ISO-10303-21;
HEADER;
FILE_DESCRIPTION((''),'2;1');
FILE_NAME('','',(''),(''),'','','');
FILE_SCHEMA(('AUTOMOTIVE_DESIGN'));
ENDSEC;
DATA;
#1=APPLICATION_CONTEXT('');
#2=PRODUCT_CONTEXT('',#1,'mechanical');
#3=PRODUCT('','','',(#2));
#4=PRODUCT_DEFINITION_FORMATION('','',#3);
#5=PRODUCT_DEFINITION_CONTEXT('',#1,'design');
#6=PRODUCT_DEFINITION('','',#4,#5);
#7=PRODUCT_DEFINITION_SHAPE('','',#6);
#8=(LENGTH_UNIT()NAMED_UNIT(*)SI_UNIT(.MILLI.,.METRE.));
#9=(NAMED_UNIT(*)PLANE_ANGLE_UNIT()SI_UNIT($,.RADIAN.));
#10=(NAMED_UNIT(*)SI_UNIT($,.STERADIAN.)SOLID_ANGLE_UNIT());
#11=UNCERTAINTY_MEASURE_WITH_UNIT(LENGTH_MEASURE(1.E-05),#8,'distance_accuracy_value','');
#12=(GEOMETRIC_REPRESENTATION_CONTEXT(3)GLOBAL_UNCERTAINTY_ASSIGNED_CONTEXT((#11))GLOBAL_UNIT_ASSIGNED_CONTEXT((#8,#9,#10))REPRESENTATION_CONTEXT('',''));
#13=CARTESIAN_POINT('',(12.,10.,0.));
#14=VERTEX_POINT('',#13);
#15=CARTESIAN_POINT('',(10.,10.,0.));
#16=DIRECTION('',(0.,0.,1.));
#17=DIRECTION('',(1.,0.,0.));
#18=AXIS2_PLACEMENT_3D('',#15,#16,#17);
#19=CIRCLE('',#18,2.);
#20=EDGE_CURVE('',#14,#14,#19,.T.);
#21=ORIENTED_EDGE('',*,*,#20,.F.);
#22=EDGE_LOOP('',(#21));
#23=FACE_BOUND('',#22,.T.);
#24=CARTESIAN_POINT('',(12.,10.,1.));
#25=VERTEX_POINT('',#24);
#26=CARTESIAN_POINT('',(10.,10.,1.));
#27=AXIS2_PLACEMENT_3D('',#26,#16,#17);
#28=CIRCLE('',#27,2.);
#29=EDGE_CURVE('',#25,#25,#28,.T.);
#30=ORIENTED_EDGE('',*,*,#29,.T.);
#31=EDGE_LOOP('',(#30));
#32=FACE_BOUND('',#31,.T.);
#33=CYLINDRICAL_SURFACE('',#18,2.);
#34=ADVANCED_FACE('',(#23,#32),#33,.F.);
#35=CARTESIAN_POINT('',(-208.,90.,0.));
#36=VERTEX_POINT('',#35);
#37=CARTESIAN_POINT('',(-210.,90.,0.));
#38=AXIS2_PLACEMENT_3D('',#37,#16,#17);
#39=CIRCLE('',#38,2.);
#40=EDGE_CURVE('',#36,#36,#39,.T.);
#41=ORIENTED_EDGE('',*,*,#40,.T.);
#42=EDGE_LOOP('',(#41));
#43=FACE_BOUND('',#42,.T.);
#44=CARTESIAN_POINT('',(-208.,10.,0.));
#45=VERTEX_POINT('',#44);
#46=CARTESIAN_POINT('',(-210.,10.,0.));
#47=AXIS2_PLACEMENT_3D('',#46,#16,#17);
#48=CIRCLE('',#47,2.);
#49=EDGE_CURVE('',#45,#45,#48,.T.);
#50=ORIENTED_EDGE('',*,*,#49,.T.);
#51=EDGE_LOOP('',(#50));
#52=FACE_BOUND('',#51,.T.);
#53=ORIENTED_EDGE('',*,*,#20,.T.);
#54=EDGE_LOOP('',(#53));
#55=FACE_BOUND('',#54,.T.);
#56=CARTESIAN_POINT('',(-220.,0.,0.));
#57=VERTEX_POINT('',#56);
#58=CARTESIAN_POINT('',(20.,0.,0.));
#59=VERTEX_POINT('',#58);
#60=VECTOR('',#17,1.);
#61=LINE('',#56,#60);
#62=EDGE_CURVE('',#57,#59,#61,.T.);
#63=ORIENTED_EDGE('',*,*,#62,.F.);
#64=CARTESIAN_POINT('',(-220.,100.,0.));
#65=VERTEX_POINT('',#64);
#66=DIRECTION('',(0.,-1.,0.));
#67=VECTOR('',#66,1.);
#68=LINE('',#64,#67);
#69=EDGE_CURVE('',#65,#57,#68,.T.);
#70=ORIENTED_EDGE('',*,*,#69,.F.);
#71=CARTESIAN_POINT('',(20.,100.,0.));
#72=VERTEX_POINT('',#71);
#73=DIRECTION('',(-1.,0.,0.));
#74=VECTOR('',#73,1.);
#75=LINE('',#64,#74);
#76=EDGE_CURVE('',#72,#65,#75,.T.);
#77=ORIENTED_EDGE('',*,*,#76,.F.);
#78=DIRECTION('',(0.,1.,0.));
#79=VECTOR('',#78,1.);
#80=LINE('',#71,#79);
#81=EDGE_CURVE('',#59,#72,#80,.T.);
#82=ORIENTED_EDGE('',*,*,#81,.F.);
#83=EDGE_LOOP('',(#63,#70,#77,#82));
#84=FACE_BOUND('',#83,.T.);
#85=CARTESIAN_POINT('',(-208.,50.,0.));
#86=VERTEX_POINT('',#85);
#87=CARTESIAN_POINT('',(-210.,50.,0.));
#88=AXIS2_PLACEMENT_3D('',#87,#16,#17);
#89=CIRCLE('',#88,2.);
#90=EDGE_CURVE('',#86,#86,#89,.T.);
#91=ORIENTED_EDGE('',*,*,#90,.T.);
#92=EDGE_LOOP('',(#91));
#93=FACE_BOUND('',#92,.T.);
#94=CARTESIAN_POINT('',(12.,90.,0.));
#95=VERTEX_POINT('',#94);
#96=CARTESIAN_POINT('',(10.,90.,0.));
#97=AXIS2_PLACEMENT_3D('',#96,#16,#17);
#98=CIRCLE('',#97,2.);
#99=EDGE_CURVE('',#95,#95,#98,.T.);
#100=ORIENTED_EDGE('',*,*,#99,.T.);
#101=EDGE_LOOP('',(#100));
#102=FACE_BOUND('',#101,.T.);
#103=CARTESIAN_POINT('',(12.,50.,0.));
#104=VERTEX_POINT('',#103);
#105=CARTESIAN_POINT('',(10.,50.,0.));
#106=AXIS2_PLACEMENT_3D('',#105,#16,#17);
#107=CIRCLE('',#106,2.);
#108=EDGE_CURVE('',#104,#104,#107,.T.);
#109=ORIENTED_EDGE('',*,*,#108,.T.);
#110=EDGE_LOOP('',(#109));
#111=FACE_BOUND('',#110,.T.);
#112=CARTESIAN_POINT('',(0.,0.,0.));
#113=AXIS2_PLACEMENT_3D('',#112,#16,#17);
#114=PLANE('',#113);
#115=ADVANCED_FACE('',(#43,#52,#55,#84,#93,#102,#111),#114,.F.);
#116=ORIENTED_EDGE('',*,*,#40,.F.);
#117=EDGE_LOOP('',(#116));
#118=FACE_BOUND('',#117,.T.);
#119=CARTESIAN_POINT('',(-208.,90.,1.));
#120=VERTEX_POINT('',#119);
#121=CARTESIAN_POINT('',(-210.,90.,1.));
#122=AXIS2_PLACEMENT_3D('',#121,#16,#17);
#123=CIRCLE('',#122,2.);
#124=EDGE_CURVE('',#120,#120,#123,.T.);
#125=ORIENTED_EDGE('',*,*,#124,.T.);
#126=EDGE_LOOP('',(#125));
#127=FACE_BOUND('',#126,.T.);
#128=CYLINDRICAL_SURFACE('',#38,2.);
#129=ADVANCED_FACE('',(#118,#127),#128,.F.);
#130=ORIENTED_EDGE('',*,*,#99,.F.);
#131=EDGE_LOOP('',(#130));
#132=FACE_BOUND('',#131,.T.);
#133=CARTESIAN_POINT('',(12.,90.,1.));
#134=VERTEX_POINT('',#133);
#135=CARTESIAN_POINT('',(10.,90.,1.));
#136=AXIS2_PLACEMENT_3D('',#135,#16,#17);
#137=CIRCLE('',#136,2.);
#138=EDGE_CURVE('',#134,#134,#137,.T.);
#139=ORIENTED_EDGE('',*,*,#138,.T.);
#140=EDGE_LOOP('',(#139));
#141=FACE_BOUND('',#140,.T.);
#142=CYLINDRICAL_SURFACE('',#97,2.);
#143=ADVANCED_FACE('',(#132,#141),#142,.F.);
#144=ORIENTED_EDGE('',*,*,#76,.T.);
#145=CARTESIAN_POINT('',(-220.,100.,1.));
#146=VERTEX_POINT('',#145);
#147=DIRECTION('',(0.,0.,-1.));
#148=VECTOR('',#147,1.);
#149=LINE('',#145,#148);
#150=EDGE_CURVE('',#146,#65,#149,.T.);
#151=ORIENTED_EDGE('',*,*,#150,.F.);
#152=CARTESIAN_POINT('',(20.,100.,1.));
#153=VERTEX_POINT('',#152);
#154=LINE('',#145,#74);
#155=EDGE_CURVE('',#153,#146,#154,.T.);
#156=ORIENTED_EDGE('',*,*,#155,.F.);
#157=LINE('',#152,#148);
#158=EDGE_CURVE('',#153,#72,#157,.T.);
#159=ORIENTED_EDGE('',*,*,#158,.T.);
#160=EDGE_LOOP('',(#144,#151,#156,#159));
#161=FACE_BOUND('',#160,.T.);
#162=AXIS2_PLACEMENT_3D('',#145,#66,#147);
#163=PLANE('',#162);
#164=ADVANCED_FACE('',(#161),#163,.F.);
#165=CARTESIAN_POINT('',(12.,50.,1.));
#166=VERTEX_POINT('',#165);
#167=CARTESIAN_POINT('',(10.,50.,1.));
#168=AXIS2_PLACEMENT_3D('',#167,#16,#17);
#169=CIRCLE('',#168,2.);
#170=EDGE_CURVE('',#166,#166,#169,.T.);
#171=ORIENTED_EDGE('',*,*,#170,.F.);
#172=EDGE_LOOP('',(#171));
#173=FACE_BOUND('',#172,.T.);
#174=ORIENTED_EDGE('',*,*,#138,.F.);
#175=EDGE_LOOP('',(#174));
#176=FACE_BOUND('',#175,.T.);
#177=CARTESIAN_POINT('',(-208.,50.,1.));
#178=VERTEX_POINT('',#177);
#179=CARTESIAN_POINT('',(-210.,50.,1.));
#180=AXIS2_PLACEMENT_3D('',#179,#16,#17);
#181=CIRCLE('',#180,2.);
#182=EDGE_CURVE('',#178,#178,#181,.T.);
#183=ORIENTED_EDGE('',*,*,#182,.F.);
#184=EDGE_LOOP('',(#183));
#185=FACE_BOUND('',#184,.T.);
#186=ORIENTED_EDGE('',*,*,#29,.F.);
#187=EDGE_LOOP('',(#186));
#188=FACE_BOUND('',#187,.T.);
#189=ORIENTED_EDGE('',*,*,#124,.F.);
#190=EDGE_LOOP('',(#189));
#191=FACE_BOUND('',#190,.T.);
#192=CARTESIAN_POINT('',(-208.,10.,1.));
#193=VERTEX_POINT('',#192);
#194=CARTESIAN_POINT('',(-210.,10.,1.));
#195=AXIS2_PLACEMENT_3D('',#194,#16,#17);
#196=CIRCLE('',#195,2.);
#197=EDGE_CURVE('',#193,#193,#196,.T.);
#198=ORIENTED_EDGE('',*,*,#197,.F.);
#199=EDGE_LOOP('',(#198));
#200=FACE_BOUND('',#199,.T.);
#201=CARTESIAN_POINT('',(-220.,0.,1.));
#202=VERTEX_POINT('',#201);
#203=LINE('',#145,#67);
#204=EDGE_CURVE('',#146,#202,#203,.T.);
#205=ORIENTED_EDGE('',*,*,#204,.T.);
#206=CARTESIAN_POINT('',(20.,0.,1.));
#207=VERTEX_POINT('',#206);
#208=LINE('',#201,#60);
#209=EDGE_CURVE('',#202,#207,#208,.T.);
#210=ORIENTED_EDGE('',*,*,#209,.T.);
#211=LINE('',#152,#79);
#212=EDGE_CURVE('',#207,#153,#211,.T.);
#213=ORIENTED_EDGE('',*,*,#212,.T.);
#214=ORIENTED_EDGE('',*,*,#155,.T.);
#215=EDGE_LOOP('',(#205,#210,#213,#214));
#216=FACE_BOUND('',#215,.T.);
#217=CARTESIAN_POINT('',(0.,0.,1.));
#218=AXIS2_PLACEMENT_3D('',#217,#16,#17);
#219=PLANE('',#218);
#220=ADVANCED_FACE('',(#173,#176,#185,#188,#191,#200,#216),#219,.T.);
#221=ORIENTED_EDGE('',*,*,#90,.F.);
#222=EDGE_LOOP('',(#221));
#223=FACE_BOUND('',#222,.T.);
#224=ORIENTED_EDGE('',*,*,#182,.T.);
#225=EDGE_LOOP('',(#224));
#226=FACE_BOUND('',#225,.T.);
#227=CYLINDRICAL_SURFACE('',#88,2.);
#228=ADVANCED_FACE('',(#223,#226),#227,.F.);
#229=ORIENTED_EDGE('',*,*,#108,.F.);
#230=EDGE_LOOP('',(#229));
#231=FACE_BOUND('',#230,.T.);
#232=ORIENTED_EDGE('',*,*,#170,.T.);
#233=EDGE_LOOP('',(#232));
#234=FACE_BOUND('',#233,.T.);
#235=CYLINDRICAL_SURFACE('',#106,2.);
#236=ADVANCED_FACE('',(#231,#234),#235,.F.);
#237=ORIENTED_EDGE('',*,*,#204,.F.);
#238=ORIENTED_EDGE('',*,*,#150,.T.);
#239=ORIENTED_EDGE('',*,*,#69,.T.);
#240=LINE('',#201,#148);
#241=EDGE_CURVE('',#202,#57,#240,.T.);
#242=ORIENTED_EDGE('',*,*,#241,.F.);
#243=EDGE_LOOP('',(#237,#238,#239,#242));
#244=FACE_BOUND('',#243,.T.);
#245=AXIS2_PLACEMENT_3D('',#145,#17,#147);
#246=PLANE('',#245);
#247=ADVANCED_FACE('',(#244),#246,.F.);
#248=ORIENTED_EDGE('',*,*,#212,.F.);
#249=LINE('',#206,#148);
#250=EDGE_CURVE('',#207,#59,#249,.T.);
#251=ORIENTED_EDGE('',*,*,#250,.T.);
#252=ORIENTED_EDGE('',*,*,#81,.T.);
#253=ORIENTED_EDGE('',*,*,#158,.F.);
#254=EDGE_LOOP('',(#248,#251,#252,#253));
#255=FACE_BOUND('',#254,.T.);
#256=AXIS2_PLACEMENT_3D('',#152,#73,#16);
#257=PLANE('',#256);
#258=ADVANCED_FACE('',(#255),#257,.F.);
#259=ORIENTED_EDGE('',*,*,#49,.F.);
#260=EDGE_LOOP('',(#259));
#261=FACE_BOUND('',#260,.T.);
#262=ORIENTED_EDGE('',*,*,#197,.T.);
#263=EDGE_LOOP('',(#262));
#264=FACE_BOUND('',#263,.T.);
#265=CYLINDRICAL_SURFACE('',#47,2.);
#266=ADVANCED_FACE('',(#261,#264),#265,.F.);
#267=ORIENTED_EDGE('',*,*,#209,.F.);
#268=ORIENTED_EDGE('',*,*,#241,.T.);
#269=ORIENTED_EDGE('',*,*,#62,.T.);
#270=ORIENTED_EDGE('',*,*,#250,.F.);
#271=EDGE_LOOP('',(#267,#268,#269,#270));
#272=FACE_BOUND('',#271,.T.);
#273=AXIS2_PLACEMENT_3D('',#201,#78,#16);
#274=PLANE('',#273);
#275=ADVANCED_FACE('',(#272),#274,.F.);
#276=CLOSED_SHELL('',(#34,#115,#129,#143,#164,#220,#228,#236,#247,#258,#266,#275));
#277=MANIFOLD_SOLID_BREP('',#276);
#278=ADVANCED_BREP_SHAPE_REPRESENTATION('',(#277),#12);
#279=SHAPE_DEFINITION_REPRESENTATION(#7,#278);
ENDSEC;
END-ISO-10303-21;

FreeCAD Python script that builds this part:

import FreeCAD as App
import Part
import Sketcher

doc = App.newDocument("Part")
body = doc.addObject("PartDesign::Body", "Body")

# Sketch on XY plane
sketch1 = body.newObject("Sketcher::SketchObject", "Sketch")
sketch1.AttachmentSupport = (doc.getObject("XY_Plane"), [""])
sketch1.MapMode = "FlatFace"
sketch1.addGeometry([
    Part.LineSegment(App.Vector(-220, 100, 0), App.Vector(-220, 0, 0)),
    Part.LineSegment(App.Vector(-220, 0, 0), App.Vector(20, 0, 0)),
    Part.LineSegment(App.Vector(20, 0, 0), App.Vector(20, 100, 0)),
    Part.LineSegment(App.Vector(20, 100, 0), App.Vector(-220, 100, 0)),
], False)
sketch1.addConstraint([
    Sketcher.Constraint("Coincident", 0, 2, 1, 1),
    Sketcher.Constraint("Coincident", 1, 2, 2, 1),
    Sketcher.Constraint("Coincident", 2, 2, 3, 1),
    Sketcher.Constraint("Coincident", 3, 2, 0, 1),
    Sketcher.Constraint("Vertical", 0),
    Sketcher.Constraint("Horizontal", 1),
    Sketcher.Constraint("Vertical", 2),
    Sketcher.Constraint("Horizontal", 3),
    Sketcher.Constraint("PointOnObject", 0, 2, -1),
    Sketcher.Constraint("DistanceX", 1, 1, 1, 2, 240.0),
    Sketcher.Constraint("DistanceY", 0, 2, 0, 1, 100.0),
    Sketcher.Constraint("DistanceX", 0, 2, -1, 1, 220.0),
])
pad1 = body.newObject("PartDesign::Pad", "Pad")
pad1.Profile = sketch1
pad1.Length = 1

# Sketch on XY plane
sketch2 = body.newObject("Sketcher::SketchObject", "Sketch001")
sketch2.AttachmentSupport = (doc.getObject("XY_Plane"), [""])
sketch2.MapMode = "FlatFace"
sketch2.AttachmentOffset = App.Placement(App.Vector(0, 0, 1), App.Rotation())
sketch2.addGeometry([
    Part.Circle(App.Vector(10, 90, 0), App.Vector(0, 0, 1), 2),  # 0
    Part.Circle(App.Vector(10, 50, 0), App.Vector(0, 0, 1), 2),  # 1
    Part.Circle(App.Vector(10, 10, 0), App.Vector(0, 0, 1), 2),  # 2
    Part.Circle(App.Vector(-210, 10, 0), App.Vector(0, 0, 1), 2),  # 3
    Part.Circle(App.Vector(-210, 50, 0), App.Vector(0, 0, 1), 2),  # 4
    Part.Circle(App.Vector(-210, 90, 0), App.Vector(0, 0, 1), 2),  # 5
], False)
sketch2.addConstraint([
    Sketcher.Constraint("Equal", 0, 1),
    Sketcher.Constraint("Equal", 1, 2),
    Sketcher.Constraint("Equal", 2, 3),
    Sketcher.Constraint("Equal", 3, 4),
    Sketcher.Constraint("Equal", 4, 5),
    Sketcher.Constraint("Horizontal", 2, 3, 3, 3),
    Sketcher.Constraint("Horizontal", 1, 3, 4, 3),
    Sketcher.Constraint("Horizontal", 0, 3, 5, 3),
    Sketcher.Constraint("Vertical", 0, 3, 1, 3),
    Sketcher.Constraint("Vertical", 1, 3, 2, 3),
    Sketcher.Constraint("Vertical", 3, 3, 4, 3),
    Sketcher.Constraint("Vertical", 4, 3, 5, 3),
    Sketcher.Constraint("Diameter", 0, 4.0),
    Sketcher.Constraint("DistanceX", -1, 1, 0, 3, 10.0),
    Sketcher.Constraint("DistanceY", -1, 1, 0, 3, 90.0),
    Sketcher.Constraint("DistanceY", -1, 1, 1, 3, 50.0),
    Sketcher.Constraint("DistanceY", -1, 1, 2, 3, 10.0),
    Sketcher.Constraint("DistanceX", 3, 3, -1, 1, 210.0),
])
pocket1 = body.newObject("PartDesign::Pocket", "Pocket")
pocket1.Profile = sketch2
pocket1.Type = "ThroughAll"

doc.recompute()
